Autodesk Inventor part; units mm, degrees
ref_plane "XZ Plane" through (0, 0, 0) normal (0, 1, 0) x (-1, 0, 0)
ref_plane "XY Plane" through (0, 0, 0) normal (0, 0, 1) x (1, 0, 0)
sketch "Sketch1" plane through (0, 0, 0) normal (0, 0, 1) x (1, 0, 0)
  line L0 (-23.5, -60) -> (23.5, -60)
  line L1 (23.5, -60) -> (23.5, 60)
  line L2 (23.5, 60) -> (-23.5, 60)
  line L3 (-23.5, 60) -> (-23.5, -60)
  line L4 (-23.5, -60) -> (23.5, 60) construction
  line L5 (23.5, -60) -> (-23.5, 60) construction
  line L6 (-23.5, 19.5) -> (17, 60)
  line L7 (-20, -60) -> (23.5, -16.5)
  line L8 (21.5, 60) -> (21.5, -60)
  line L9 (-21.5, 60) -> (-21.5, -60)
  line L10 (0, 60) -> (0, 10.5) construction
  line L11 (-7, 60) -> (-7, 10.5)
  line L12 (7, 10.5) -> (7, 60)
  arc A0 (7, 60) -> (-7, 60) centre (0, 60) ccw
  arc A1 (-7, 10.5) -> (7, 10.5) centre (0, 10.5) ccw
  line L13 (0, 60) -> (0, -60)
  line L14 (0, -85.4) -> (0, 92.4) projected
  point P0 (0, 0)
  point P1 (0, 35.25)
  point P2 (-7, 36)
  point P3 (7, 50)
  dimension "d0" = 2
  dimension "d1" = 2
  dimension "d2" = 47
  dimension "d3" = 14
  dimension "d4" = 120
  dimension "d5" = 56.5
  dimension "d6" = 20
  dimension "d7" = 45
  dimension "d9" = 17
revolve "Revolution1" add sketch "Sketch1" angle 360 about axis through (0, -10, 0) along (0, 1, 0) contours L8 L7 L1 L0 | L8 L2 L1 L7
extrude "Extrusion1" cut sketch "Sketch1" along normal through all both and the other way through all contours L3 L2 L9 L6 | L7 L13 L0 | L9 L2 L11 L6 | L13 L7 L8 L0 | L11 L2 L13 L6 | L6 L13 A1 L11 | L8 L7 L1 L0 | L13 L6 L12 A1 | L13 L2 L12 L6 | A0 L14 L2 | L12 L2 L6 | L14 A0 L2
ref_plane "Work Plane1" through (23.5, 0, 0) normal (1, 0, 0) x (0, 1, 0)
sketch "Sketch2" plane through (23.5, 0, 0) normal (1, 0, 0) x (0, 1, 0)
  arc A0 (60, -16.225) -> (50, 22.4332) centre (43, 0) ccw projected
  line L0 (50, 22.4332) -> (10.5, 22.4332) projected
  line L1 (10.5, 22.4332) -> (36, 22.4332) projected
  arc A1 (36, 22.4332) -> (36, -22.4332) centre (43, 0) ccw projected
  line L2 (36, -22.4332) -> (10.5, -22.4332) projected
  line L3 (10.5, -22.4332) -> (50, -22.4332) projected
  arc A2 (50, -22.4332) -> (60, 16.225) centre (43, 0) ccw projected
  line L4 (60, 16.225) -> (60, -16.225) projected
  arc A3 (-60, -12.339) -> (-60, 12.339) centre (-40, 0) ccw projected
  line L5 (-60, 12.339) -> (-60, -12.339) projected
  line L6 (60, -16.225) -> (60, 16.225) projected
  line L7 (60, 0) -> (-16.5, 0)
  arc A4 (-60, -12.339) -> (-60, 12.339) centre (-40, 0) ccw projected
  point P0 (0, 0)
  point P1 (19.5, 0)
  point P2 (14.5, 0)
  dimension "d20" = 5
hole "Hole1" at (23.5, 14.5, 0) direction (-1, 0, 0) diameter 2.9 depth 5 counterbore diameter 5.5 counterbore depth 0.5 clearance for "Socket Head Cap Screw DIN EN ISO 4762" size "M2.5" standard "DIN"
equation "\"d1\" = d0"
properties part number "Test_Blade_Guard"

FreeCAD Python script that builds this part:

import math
import FreeCAD as App
import Part
import Sketcher

V = App.Vector
Q = App.Units.Quantity


def add_polygon(sketch, points):
    """Adds a closed chain of lines whose ends are joined by coincident constraints."""
    first, n = sketch.GeometryCount, len(points)
    for a, b in zip(points, points[1:] + points[:1]):
        sketch.addGeometry(Part.LineSegment(App.Vector(*a, 0), App.Vector(*b, 0)), False)
    for i in range(n):
        sketch.addConstraint(Sketcher.Constraint("Coincident", first + i, 2, first + (i + 1) % n, 1))

doc = App.newDocument("Part")
body = doc.addObject("PartDesign::Body", "Body")

sketch1 = body.newObject("Sketcher::SketchObject", "Sketch")
sketch1.AttachmentSupport = (doc.getObject("XY_Plane"), [""])
sketch1.MapMode = "FlatFace"
add_polygon(sketch1, [(21.5, -60), (23.5, -60), (23.5, 60), (21.5, 60)])
sketch1.addConstraint([
    Sketcher.Constraint("Horizontal", 0),
    Sketcher.Constraint("Vertical", 1),
    Sketcher.Constraint("Horizontal", 2),
    Sketcher.Constraint("Vertical", 3),
    Sketcher.Constraint("DistanceX", 0, 1, 0, 2, Q("2 mm")),
    Sketcher.Constraint("DistanceY", 1, 1, 1, 2, Q("120 mm")),
    Sketcher.Constraint("DistanceY", 0, 2, -1, 1, Q("60 mm")),
    Sketcher.Constraint("DistanceX", -1, 1, 0, 2, Q("23.5 mm")),
])
revolution = body.newObject("PartDesign::Revolution", "Revolution")
revolution.Profile = sketch1
revolution.ReferenceAxis = (sketch1, ["V_Axis"])
revolution.Angle = 360

sketch2 = body.newObject("Sketcher::SketchObject", "Sketch001")
sketch2.AttachmentSupport = (doc.getObject("XY_Plane"), [""])
sketch2.MapMode = "FlatFace"
sketch2.addGeometry(Part.LineSegment(V(-24, 60, 0), V(-24, 20, 0)), False)
sketch2.addGeometry(Part.LineSegment(V(-24, 20, 0), V(-7, 36, 0)), False)
sketch2.addGeometry(Part.LineSegment(V(-7, 36, 0), V(-7, 10, 0)), False)
sketch2.addGeometry(Part.ArcOfCircle(Part.Circle(V(0, 10, 0), V(0, 0, 1), 7), math.radians(180), math.radians(360)), False)
sketch2.addGeometry(Part.LineSegment(V(7, 10, 0), V(7, 50, 0)), False)
sketch2.addGeometry(Part.LineSegment(V(7, 50, 0), V(17, 60, 0)), False)
sketch2.addGeometry(Part.LineSegment(V(17, 60, 0), V(7, 60, 0)), False)
sketch2.addGeometry(Part.ArcOfCircle(Part.Circle(V(0, 60, 0), V(0, 0, 1), 7), math.radians(0), math.radians(180)), False)
sketch2.addGeometry(Part.LineSegment(V(-7, 60, 0), V(-24, 60, 0)), False)
add_polygon(sketch2, [(-20, -60), (24, -60), (24, -16)])
sketch2.addConstraint([
    Sketcher.Constraint("Coincident", 0, 2, 1, 1),
    Sketcher.Constraint("Coincident", 1, 2, 2, 1),
    Sketcher.Constraint("Tangent", 2, 2, 3, 1),
    Sketcher.Constraint("Tangent", 3, 2, 4, 1),
    Sketcher.Constraint("Coincident", 4, 2, 5, 1),
    Sketcher.Constraint("Coincident", 5, 2, 6, 1),
    Sketcher.Constraint("Coincident", 6, 2, 7, 1),
    Sketcher.Constraint("Coincident", 7, 2, 8, 1),
    Sketcher.Constraint("Coincident", 8, 2, 0, 1),
    Sketcher.Constraint("Vertical", 0),
    Sketcher.Constraint("Vertical", 2),
    Sketcher.Constraint("Vertical", 4),
    Sketcher.Constraint("Horizontal", 6),
    Sketcher.Constraint("Horizontal", 8),
    Sketcher.Constraint("Horizontal", 9),
    Sketcher.Constraint("Vertical", 10),
    Sketcher.Constraint("Equal", 3, 7),
    Sketcher.Constraint("Symmetric", 8, 2, 9, 2, -1, 1),
    Sketcher.Constraint("Symmetric", 6, 2, 7, 2, -2),
    Sketcher.Constraint("PointOnObject", 3, 3, -2),
    Sketcher.Constraint("Parallel", 1, 5),
    Sketcher.Constraint("Parallel", 5, 11),
    Sketcher.Constraint("Horizontal", 7, 3, 5, 2),
    Sketcher.Constraint("Equal", 9, 10),
    Sketcher.Constraint("Radius", 3, Q("7 mm")),
    Sketcher.Constraint("DistanceX", -1, 1, 5, 2, Q("17 mm")),
    Sketcher.Constraint("DistanceX", 11, 2, -1, 1, Q("20 mm")),
    Sketcher.Constraint("DistanceY", 1, 2, 4, 2, Q("14 mm")),
    Sketcher.Constraint("DistanceX", 0, 2, 9, 2, Q("47 mm")),
    Sketcher.Constraint("DistanceY", 2, 2, 2, 1, Q("25.5 mm")),
    Sketcher.Constraint("DistanceY", -1, 1, 7, 3, Q("60 mm")),
])
pocket1 = body.newObject("PartDesign::Pocket", "Pocket")
pocket1.Profile = sketch2
pocket1.Type = "ThroughAll"
pocket1.Midplane = True

sketch3 = body.newObject("Sketcher::SketchObject", "Sketch002")
sketch3.AttachmentSupport = (doc.getObject("YZ_Plane"), [""])
sketch3.MapMode = "FlatFace"
sketch3.AttachmentOffset = App.Placement(V(0, 0, 23.5), App.Rotation())
sketch3.addGeometry(Part.Circle(V(14.5, 0, 0), V(0, 0, 1), 1.4), False)
sketch3.addConstraint([
    Sketcher.Constraint("PointOnObject", 0, 3, -1),
    Sketcher.Constraint("Diameter", 0, Q("2.9 mm")),
    Sketcher.Constraint("DistanceX", -1, 1, 0, 3, Q("14.5 mm")),
])
doc.recompute()
hole = body.newObject("PartDesign::Hole", "Hole")
hole.Profile = sketch3
hole.ThreadType = "None"
hole.Diameter = 2.9
hole.DepthType = "Dimension"
hole.Depth = 5
hole.DrillPoint = "Flat"
hole.HoleCutType = "Counterbore"
hole.HoleCutDiameter = 5.5
hole.HoleCutDepth = 0.5

doc.recompute()
